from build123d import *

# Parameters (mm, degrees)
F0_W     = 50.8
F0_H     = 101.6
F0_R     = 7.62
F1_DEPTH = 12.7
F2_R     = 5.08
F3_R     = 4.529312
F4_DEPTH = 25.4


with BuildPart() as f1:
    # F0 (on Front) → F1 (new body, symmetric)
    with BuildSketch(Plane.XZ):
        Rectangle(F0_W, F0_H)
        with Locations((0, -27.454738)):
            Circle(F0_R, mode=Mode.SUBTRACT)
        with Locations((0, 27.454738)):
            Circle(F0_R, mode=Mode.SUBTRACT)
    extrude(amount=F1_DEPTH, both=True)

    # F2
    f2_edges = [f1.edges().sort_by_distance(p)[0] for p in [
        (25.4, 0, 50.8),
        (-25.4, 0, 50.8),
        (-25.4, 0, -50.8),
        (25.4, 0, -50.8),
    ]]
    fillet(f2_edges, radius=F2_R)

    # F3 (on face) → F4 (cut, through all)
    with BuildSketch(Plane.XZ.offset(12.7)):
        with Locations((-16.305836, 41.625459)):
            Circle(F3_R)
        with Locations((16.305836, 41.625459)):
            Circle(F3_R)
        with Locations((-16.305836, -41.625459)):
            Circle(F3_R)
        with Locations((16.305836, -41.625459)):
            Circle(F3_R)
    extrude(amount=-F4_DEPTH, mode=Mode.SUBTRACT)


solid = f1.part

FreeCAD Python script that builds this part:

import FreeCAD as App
import Part
import Sketcher
Q = App.Units.Quantity


def edges_at(feature, points):
    """Names of the edges that pass closest to the given points."""
    edges = feature.Shape.Edges
    near = lambda p: min(range(len(edges)), key=lambda i: edges[i].distToShape(Part.Vertex(*p))[0])
    return sorted({f"Edge{near(p) + 1}" for p in points})


def add_polygon(sketch, points):
    """Adds a closed chain of lines whose ends are joined by coincident constraints."""
    first, n = sketch.GeometryCount, len(points)
    for a, b in zip(points, points[1:] + points[:1]):
        sketch.addGeometry(Part.LineSegment(App.Vector(*a, 0), App.Vector(*b, 0)), False)
    for i in range(n):
        sketch.addConstraint(Sketcher.Constraint("Coincident", first + i, 2, first + (i + 1) % n, 1))

doc = App.newDocument("Part")
params = doc.addObject("Spreadsheet::Sheet", "Params")
for row, (alias, value) in enumerate([
    ("sketch1_diameter", "0.6 in"),
    ("sketch1_width", "2 in"),
    ("sketch1_height", "4 in"),
    ("pad1_length", "1 in"),
    ("fillet_radius", "0.2 in"),
], start=1):
    params.set(f"A{row}", alias)
    params.set(f"B{row}", "=" + value)
    params.setAlias(f"B{row}", alias)

body = doc.addObject("PartDesign::Body", "Body")

# Sketch on XZ plane
sketch1 = body.newObject("Sketcher::SketchObject", "Sketch")
sketch1.AttachmentSupport = (doc.getObject("XZ_Plane"), [""])
sketch1.MapMode = "FlatFace"
add_polygon(sketch1, [(-25, 51), (-25, -51), (25, -51), (25, 51)])  # lines 0-3
sketch1.addGeometry(Part.Circle(App.Vector(0, -27, 0), App.Vector(0, 0, 1), 8), False)  # 4
sketch1.addGeometry(Part.Circle(App.Vector(0, 27, 0), App.Vector(0, 0, 1), 8), False)  # 5
sketch1.addConstraint([
    Sketcher.Constraint("Vertical", 0),
    Sketcher.Constraint("Horizontal", 1),
    Sketcher.Constraint("Vertical", 2),
    Sketcher.Constraint("Horizontal", 3),
    Sketcher.Constraint("Equal", 4, 5),
    Sketcher.Constraint("Symmetric", 4, 3, 5, 3, -1, 1),
    Sketcher.Constraint("Symmetric", 0, 2, 2, 2, -1, 1),
    Sketcher.Constraint("PointOnObject", 4, 3, -2),
    Sketcher.Constraint("Diameter", 4, Q("0.6 in")),
    Sketcher.Constraint("DistanceX", 1, 1, 1, 2, Q("2 in")),
    Sketcher.Constraint("DistanceY", 0, 2, 0, 1, Q("4 in")),
    Sketcher.Constraint("DistanceY", 0, 2, 4, 3, Q("23.345262 mm")),
])
sketch1.setExpression("Constraints[12]", "Params.sketch1_diameter")
sketch1.setExpression("Constraints[13]", "Params.sketch1_width")
sketch1.setExpression("Constraints[14]", "Params.sketch1_height")
pad1 = body.newObject("PartDesign::Pad", "Pad")
pad1.Profile = sketch1
pad1.setExpression("Length", "Params.pad1_length")
pad1.Midplane = True
doc.recompute()

fillet = body.newObject("PartDesign::Fillet", "Fillet")
fillet.Base = (pad1, edges_at(pad1, [
    (25.4, 0, 50.8),
    (-25.4, 0, 50.8),
    (-25.4, 0, -50.8),
    (25.4, 0, -50.8),
]))
fillet.setExpression("Radius", "Params.fillet_radius")

# Sketch on XZ plane
sketch2 = body.newObject("Sketcher::SketchObject", "Sketch001")
sketch2.AttachmentSupport = (doc.getObject("XZ_Plane"), [""])
sketch2.MapMode = "FlatFace"
sketch2.AttachmentOffset = App.Placement(App.Vector(0, 0, 0.5 * 25.4), App.Rotation())
sketch2.addGeometry([
    Part.Circle(App.Vector(-16.3, 41.6, 0), App.Vector(0, 0, 1), 4.5),
    Part.Circle(App.Vector(16.3, 41.6, 0), App.Vector(0, 0, 1), 4.5),
    Part.Circle(App.Vector(-16.3, -41.6, 0), App.Vector(0, 0, 1), 4.5),
    Part.Circle(App.Vector(16.3, -41.6, 0), App.Vector(0, 0, 1), 4.5),
], False)
sketch2.addConstraint([
    Sketcher.Constraint("Equal", 0, 1),
    Sketcher.Constraint("Equal", 1, 2),
    Sketcher.Constraint("Equal", 2, 3),
    Sketcher.Constraint("Symmetric", 1, 3, 2, 3, -1, 1),
    Sketcher.Constraint("Symmetric", 0, 3, 3, 3, -1, 1),
    Sketcher.Constraint("Symmetric", 0, 3, 1, 3, -2),
    Sketcher.Constraint("Diameter", 0, Q("9.058624 mm")),
    Sketcher.Constraint("DistanceY", -1, 1, 0, 3, Q("41.625459 mm")),
    Sketcher.Constraint("DistanceX", 0, 3, -1, 1, Q("16.305836 mm")),
])
pocket1 = body.newObject("PartDesign::Pocket", "Pocket")
pocket1.Profile = sketch2
pocket1.Type = "ThroughAll"

doc.recompute()
